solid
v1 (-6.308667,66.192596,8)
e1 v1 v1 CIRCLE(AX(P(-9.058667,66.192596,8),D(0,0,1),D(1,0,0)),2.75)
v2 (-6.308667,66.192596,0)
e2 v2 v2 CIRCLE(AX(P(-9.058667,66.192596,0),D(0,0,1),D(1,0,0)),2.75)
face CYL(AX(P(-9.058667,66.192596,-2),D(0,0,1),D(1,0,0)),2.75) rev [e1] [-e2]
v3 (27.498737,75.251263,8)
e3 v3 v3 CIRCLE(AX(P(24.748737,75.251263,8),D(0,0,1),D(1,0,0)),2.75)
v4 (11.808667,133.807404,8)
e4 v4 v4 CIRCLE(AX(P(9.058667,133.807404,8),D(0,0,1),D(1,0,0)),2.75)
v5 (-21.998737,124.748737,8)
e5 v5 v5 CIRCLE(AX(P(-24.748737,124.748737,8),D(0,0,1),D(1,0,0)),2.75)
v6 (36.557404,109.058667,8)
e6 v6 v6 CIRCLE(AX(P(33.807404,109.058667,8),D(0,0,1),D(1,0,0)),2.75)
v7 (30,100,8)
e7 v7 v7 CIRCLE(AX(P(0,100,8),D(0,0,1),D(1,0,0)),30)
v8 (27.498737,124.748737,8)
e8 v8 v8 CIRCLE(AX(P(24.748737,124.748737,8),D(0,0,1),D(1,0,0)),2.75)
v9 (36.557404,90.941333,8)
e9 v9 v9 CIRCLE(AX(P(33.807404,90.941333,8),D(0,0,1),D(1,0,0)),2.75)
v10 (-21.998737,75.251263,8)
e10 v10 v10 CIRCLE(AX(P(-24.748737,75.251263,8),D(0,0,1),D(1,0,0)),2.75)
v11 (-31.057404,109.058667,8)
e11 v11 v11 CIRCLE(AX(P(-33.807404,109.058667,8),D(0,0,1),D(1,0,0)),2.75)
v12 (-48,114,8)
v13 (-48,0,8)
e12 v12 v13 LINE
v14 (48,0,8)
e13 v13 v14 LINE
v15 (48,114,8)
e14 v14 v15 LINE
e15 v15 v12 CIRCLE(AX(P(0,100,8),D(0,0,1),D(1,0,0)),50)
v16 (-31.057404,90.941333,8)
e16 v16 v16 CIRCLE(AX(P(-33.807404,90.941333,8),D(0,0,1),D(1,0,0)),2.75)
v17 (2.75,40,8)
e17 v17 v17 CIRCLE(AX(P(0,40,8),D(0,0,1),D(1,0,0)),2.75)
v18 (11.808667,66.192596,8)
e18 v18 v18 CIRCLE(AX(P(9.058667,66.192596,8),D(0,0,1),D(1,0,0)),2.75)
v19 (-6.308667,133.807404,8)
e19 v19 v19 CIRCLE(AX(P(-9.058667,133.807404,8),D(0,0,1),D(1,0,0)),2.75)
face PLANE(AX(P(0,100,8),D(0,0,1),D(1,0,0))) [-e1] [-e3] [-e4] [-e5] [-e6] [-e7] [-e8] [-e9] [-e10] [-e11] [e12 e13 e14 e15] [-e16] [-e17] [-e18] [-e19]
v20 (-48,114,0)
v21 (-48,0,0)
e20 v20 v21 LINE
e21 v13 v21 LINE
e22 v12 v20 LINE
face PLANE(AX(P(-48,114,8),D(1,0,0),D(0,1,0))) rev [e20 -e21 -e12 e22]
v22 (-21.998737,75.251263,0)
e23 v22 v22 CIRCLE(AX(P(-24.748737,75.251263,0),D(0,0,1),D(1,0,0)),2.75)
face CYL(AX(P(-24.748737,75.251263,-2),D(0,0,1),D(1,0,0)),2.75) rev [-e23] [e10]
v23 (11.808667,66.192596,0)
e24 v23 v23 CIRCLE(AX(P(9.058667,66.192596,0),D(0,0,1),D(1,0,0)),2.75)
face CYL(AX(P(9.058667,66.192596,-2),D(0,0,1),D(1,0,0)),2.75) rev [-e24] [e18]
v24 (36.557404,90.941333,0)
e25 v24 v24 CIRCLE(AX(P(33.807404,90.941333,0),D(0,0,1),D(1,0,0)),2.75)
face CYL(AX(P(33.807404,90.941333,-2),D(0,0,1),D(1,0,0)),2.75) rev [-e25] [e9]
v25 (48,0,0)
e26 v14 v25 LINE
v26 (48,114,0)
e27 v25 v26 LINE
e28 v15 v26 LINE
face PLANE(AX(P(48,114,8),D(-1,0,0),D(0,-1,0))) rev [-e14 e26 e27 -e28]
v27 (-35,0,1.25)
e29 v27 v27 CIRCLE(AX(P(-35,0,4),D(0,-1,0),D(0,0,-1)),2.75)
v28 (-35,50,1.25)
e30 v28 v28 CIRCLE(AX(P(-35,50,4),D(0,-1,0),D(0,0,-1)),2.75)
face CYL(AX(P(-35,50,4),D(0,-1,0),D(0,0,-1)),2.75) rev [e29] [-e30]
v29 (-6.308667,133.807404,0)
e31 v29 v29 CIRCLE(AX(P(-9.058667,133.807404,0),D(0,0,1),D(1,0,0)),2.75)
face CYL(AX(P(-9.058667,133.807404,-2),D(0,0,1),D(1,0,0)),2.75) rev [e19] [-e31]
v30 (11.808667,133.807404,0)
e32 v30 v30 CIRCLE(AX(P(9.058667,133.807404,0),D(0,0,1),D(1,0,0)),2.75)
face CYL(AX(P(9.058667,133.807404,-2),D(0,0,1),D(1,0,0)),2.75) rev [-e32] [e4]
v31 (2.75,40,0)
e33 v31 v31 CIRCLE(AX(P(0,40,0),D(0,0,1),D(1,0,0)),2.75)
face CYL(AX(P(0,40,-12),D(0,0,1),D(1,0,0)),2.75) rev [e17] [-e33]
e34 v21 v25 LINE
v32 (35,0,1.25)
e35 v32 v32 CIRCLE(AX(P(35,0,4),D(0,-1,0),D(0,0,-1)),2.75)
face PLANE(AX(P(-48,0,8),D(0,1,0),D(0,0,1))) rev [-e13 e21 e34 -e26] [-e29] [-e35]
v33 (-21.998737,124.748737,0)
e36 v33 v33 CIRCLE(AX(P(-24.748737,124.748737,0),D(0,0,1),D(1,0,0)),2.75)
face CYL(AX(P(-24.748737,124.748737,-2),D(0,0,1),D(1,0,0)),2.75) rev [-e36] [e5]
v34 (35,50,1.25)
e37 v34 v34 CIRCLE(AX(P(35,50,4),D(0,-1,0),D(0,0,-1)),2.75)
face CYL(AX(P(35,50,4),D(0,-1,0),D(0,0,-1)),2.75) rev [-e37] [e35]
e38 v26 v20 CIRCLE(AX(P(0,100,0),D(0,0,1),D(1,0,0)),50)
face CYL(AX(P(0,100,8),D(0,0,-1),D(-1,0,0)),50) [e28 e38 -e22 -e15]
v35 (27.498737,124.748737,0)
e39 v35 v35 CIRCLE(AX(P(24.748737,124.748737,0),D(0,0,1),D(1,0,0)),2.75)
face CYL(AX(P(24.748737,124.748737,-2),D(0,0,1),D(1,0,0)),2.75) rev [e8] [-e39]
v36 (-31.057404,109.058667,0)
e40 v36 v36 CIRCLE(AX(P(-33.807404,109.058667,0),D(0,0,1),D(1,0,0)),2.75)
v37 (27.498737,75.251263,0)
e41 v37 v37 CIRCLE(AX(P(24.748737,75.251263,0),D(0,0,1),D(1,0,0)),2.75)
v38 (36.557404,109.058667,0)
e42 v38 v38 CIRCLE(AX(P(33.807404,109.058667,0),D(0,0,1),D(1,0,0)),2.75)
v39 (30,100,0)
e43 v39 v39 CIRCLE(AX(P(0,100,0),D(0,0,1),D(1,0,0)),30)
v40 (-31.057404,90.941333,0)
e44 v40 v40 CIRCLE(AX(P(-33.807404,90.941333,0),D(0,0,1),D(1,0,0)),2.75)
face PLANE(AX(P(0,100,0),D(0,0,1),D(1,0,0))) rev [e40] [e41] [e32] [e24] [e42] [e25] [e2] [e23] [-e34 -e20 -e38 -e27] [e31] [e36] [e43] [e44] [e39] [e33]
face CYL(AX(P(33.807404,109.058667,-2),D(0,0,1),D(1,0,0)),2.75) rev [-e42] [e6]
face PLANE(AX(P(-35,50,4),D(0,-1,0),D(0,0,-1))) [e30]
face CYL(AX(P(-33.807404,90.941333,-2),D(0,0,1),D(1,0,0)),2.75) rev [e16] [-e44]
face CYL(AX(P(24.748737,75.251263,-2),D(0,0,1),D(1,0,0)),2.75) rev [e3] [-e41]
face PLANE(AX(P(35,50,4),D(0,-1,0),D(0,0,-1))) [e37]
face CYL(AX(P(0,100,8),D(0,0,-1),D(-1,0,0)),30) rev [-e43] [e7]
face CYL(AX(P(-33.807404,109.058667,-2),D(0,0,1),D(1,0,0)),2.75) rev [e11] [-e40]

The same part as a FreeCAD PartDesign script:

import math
import FreeCAD as App
import Part
import Sketcher
from FreeCAD import Vector
Q = App.Units.Quantity

doc = App.newDocument("Part")
params = doc.addObject("Spreadsheet::Sheet", "Params")
for row, (alias, value) in enumerate([
    ("sketch1_diameter", "60 mm"),
    ("sketch1_radius", "50 mm"),
    ("sketch1_width", "96 mm"),
    ("sketch1_height", "114 mm"),
    ("pad1_length", "8 mm"),
    ("sketch2_diameter", "5.5 mm"),
    ("pocket1_length", "50 mm"),
    ("sketch3_diameter", "5.5 mm"),
    ("pocket2_length", "20 mm"),
    ("sketch4_diameter", "5.5 mm"),
    ("pocket3_length", "10 mm"),
], start=1):
    params.set(f"A{row}", alias)
    params.set(f"B{row}", "=" + value)
    params.setAlias(f"B{row}", alias)

body = doc.addObject("PartDesign::Body", "Body")

# Sketch on XY plane
sketch1 = body.newObject("Sketcher::SketchObject", "Sketch")
sketch1.AttachmentSupport = (doc.getObject("XY_Plane"), [""])
sketch1.MapMode = "FlatFace"
sketch1.addGeometry(Part.LineSegment(Vector(-48, 114, 0), Vector(-48, 0, 0)), False)
sketch1.addGeometry(Part.LineSegment(Vector(-48, 0, 0), Vector(48, 0, 0)), False)
sketch1.addGeometry(Part.LineSegment(Vector(48, 0, 0), Vector(48, 114, 0)), False)
sketch1.addGeometry(Part.ArcOfCircle(Part.Circle(Vector(0, 100, 0), Vector(0, 0, 1), 50), math.radians(16.260205), math.radians(163.739795)), False)
sketch1.addGeometry(Part.Circle(Vector(0, 100, 0), Vector(0, 0, 1), 30), False)
sketch1.addConstraint(Sketcher.Constraint("Coincident", 0, 2, 1, 1))
sketch1.addConstraint(Sketcher.Constraint("Coincident", 1, 2, 2, 1))
sketch1.addConstraint(Sketcher.Constraint("Coincident", 2, 2, 3, 1))
sketch1.addConstraint(Sketcher.Constraint("Coincident", 3, 2, 0, 1))
sketch1.addConstraint(Sketcher.Constraint("Vertical", 0))
sketch1.addConstraint(Sketcher.Constraint("Horizontal", 1))
sketch1.addConstraint(Sketcher.Constraint("Vertical", 2))
sketch1.addConstraint(Sketcher.Constraint("Coincident", 4, 3, 3, 3))
sketch1.addConstraint(Sketcher.Constraint("Symmetric", 0, 2, 1, 2, -1, 1))
sketch1.addConstraint(Sketcher.Constraint("PointOnObject", 3, 3, -2))
sketch1.addConstraint(Sketcher.Constraint("Diameter", 4, Q("60 mm")))
sketch1.addConstraint(Sketcher.Constraint("Radius", 3, Q("50 mm")))
sketch1.addConstraint(Sketcher.Constraint("DistanceX", 1, 1, 1, 2, Q("96 mm")))
sketch1.addConstraint(Sketcher.Constraint("DistanceY", 0, 2, 0, 1, Q("114 mm")))
sketch1.setExpression("Constraints[10]", "Params.sketch1_diameter")
sketch1.setExpression("Constraints[11]", "Params.sketch1_radius")
sketch1.setExpression("Constraints[12]", "Params.sketch1_width")
sketch1.setExpression("Constraints[13]", "Params.sketch1_height")
pad1 = body.newObject("PartDesign::Pad", "Pad")
pad1.Profile = sketch1
pad1.setExpression("Length", "Params.pad1_length")

# Sketch on XZ plane
sketch2 = body.newObject("Sketcher::SketchObject", "Sketch001")
sketch2.AttachmentSupport = (doc.getObject("XZ_Plane"), [""])
sketch2.MapMode = "FlatFace"
sketch2.addGeometry(Part.Circle(Vector(35, 4, 0), Vector(0, 0, 1), 2.75), False)
sketch2.addGeometry(Part.Circle(Vector(-35, 4, 0), Vector(0, 0, 1), 2.75), False)
sketch2.addConstraint(Sketcher.Constraint("Equal", 0, 1))
sketch2.addConstraint(Sketcher.Constraint("Symmetric", 0, 3, 1, 3, -2))
sketch2.addConstraint(Sketcher.Constraint("Diameter", 0, Q("5.5 mm")))
sketch2.addConstraint(Sketcher.Constraint("DistanceX", -1, 1, 0, 3, Q("35 mm")))
sketch2.addConstraint(Sketcher.Constraint("DistanceY", -1, 1, 0, 3, Q("4 mm")))
sketch2.setExpression("Constraints[2]", "Params.sketch2_diameter")
pocket1 = body.newObject("PartDesign::Pocket", "Pocket")
pocket1.Profile = sketch2
pocket1.setExpression("Length", "Params.pocket1_length")

# Sketch on XY plane
sketch3 = body.newObject("Sketcher::SketchObject", "Sketch002")
sketch3.AttachmentSupport = (doc.getObject("XY_Plane"), [""])
sketch3.MapMode = "FlatFace"
sketch3.AttachmentOffset = App.Placement(Vector(0, 0, 8), App.Rotation())
sketch3.addGeometry(Part.Circle(Vector(0, 40, 0), Vector(0, 0, 1), 2.75), False)
sketch3.addConstraint(Sketcher.Constraint("PointOnObject", 0, 3, -2))
sketch3.addConstraint(Sketcher.Constraint("Diameter", 0, Q("5.5 mm")))
sketch3.addConstraint(Sketcher.Constraint("DistanceY", -1, 1, 0, 3, Q("40 mm")))
sketch3.setExpression("Constraints[1]", "Params.sketch3_diameter")
pocket2 = body.newObject("PartDesign::Pocket", "Pocket001")
pocket2.Profile = sketch3
pocket2.setExpression("Length", "Params.pocket2_length")

# Sketch on XY plane
sketch4 = body.newObject("Sketcher::SketchObject", "Sketch003")
sketch4.AttachmentSupport = (doc.getObject("XY_Plane"), [""])
sketch4.MapMode = "FlatFace"
sketch4.AttachmentOffset = App.Placement(Vector(0, 0, 8), App.Rotation())
sketch4.addGeometry(Part.Circle(Vector(9.058667, 133.807404, 0), Vector(0, 0, 1), 2.75), False)
sketch4.addGeometry(Part.Circle(Vector(24.748737, 124.748737, 0), Vector(0, 0, 1), 2.75), False)
sketch4.addGeometry(Part.Circle(Vector(33.807404, 109.058667, 0), Vector(0, 0, 1), 2.75), False)
sketch4.addGeometry(Part.Circle(Vector(33.807404, 90.941333, 0), Vector(0, 0, 1), 2.75), False)
sketch4.addGeometry(Part.Circle(Vector(24.748737, 75.251263, 0), Vector(0, 0, 1), 2.75), False)
sketch4.addGeometry(Part.Circle(Vector(9.058667, 66.192596, 0), Vector(0, 0, 1), 2.75), False)
sketch4.addGeometry(Part.Circle(Vector(-9.058667, 66.192596, 0), Vector(0, 0, 1), 2.75), False)
sketch4.addGeometry(Part.Circle(Vector(-24.748737, 75.251263, 0), Vector(0, 0, 1), 2.75), False)
sketch4.addGeometry(Part.Circle(Vector(-33.807404, 90.941333, 0), Vector(0, 0, 1), 2.75), False)
sketch4.addGeometry(Part.Circle(Vector(-33.807404, 109.058667, 0), Vector(0, 0, 1), 2.75), False)
sketch4.addGeometry(Part.Circle(Vector(-24.748737, 124.748737, 0), Vector(0, 0, 1), 2.75), False)
sketch4.addGeometry(Part.Circle(Vector(-9.058667, 133.807404, 0), Vector(0, 0, 1), 2.75), False)
sketch4.addConstraint(Sketcher.Constraint("Equal", 0, 1))
sketch4.addConstraint(Sketcher.Constraint("Equal", 1, 2))
sketch4.addConstraint(Sketcher.Constraint("Equal", 2, 3))
sketch4.addConstraint(Sketcher.Constraint("Equal", 3, 4))
sketch4.addConstraint(Sketcher.Constraint("Equal", 4, 5))
sketch4.addConstraint(Sketcher.Constraint("Equal", 5, 6))
sketch4.addConstraint(Sketcher.Constraint("Equal", 6, 7))
sketch4.addConstraint(Sketcher.Constraint("Equal", 7, 8))
sketch4.addConstraint(Sketcher.Constraint("Equal", 8, 9))
sketch4.addConstraint(Sketcher.Constraint("Equal", 9, 10))
sketch4.addConstraint(Sketcher.Constraint("Equal", 10, 11))
sketch4.addConstraint(Sketcher.Constraint("Symmetric", 5, 3, 6, 3, -2))
sketch4.addConstraint(Sketcher.Constraint("Symmetric", 4, 3, 7, 3, -2))
sketch4.addConstraint(Sketcher.Constraint("Symmetric", 3, 3, 8, 3, -2))
sketch4.addConstraint(Sketcher.Constraint("Symmetric", 2, 3, 9, 3, -2))
sketch4.addConstraint(Sketcher.Constraint("Symmetric", 1, 3, 10, 3, -2))
sketch4.addConstraint(Sketcher.Constraint("Symmetric", 0, 3, 11, 3, -2))
sketch4.addConstraint(Sketcher.Constraint("Vertical", 2, 3, 3, 3))
sketch4.addConstraint(Sketcher.Constraint("Vertical", 1, 3, 4, 3))
sketch4.addConstraint(Sketcher.Constraint("Vertical", 0, 3, 5, 3))
sketch4.addConstraint(Sketcher.Constraint("Diameter", 0, Q("5.5 mm")))
sketch4.addConstraint(Sketcher.Constraint("DistanceX", 0, 3, 1, 3, Q("15.690071 mm")))
sketch4.addConstraint(Sketcher.Constraint("DistanceY", 2, 3, 1, 3, Q("15.690071 mm")))
sketch4.addConstraint(Sketcher.Constraint("DistanceY", 3, 3, 0, 3, Q("42.86607 mm")))
sketch4.addConstraint(Sketcher.Constraint("DistanceY", 4, 3, 3, 3, Q("15.690071 mm")))
sketch4.addConstraint(Sketcher.Constraint("DistanceY", 5, 3, 2, 3, Q("42.86607 mm")))
sketch4.addConstraint(Sketcher.Constraint("DistanceX", 6, 3, 3, 3, Q("42.86607 mm")))
sketch4.addConstraint(Sketcher.Constraint("DistanceX", -1, 1, 0, 3, Q("9.058667 mm")))
sketch4.addConstraint(Sketcher.Constraint("DistanceY", -1, 1, 0, 3, Q("133.807404 mm")))
sketch4.addConstraint(Sketcher.Constraint("DistanceY", -1, 1, 1, 3, Q("124.748737 mm")))
sketch4.setExpression("Constraints[20]", "Params.sketch4_diameter")
pocket3 = body.newObject("PartDesign::Pocket", "Pocket002")
pocket3.Profile = sketch4
pocket3.setExpression("Length", "Params.pocket3_length")

doc.recompute()
